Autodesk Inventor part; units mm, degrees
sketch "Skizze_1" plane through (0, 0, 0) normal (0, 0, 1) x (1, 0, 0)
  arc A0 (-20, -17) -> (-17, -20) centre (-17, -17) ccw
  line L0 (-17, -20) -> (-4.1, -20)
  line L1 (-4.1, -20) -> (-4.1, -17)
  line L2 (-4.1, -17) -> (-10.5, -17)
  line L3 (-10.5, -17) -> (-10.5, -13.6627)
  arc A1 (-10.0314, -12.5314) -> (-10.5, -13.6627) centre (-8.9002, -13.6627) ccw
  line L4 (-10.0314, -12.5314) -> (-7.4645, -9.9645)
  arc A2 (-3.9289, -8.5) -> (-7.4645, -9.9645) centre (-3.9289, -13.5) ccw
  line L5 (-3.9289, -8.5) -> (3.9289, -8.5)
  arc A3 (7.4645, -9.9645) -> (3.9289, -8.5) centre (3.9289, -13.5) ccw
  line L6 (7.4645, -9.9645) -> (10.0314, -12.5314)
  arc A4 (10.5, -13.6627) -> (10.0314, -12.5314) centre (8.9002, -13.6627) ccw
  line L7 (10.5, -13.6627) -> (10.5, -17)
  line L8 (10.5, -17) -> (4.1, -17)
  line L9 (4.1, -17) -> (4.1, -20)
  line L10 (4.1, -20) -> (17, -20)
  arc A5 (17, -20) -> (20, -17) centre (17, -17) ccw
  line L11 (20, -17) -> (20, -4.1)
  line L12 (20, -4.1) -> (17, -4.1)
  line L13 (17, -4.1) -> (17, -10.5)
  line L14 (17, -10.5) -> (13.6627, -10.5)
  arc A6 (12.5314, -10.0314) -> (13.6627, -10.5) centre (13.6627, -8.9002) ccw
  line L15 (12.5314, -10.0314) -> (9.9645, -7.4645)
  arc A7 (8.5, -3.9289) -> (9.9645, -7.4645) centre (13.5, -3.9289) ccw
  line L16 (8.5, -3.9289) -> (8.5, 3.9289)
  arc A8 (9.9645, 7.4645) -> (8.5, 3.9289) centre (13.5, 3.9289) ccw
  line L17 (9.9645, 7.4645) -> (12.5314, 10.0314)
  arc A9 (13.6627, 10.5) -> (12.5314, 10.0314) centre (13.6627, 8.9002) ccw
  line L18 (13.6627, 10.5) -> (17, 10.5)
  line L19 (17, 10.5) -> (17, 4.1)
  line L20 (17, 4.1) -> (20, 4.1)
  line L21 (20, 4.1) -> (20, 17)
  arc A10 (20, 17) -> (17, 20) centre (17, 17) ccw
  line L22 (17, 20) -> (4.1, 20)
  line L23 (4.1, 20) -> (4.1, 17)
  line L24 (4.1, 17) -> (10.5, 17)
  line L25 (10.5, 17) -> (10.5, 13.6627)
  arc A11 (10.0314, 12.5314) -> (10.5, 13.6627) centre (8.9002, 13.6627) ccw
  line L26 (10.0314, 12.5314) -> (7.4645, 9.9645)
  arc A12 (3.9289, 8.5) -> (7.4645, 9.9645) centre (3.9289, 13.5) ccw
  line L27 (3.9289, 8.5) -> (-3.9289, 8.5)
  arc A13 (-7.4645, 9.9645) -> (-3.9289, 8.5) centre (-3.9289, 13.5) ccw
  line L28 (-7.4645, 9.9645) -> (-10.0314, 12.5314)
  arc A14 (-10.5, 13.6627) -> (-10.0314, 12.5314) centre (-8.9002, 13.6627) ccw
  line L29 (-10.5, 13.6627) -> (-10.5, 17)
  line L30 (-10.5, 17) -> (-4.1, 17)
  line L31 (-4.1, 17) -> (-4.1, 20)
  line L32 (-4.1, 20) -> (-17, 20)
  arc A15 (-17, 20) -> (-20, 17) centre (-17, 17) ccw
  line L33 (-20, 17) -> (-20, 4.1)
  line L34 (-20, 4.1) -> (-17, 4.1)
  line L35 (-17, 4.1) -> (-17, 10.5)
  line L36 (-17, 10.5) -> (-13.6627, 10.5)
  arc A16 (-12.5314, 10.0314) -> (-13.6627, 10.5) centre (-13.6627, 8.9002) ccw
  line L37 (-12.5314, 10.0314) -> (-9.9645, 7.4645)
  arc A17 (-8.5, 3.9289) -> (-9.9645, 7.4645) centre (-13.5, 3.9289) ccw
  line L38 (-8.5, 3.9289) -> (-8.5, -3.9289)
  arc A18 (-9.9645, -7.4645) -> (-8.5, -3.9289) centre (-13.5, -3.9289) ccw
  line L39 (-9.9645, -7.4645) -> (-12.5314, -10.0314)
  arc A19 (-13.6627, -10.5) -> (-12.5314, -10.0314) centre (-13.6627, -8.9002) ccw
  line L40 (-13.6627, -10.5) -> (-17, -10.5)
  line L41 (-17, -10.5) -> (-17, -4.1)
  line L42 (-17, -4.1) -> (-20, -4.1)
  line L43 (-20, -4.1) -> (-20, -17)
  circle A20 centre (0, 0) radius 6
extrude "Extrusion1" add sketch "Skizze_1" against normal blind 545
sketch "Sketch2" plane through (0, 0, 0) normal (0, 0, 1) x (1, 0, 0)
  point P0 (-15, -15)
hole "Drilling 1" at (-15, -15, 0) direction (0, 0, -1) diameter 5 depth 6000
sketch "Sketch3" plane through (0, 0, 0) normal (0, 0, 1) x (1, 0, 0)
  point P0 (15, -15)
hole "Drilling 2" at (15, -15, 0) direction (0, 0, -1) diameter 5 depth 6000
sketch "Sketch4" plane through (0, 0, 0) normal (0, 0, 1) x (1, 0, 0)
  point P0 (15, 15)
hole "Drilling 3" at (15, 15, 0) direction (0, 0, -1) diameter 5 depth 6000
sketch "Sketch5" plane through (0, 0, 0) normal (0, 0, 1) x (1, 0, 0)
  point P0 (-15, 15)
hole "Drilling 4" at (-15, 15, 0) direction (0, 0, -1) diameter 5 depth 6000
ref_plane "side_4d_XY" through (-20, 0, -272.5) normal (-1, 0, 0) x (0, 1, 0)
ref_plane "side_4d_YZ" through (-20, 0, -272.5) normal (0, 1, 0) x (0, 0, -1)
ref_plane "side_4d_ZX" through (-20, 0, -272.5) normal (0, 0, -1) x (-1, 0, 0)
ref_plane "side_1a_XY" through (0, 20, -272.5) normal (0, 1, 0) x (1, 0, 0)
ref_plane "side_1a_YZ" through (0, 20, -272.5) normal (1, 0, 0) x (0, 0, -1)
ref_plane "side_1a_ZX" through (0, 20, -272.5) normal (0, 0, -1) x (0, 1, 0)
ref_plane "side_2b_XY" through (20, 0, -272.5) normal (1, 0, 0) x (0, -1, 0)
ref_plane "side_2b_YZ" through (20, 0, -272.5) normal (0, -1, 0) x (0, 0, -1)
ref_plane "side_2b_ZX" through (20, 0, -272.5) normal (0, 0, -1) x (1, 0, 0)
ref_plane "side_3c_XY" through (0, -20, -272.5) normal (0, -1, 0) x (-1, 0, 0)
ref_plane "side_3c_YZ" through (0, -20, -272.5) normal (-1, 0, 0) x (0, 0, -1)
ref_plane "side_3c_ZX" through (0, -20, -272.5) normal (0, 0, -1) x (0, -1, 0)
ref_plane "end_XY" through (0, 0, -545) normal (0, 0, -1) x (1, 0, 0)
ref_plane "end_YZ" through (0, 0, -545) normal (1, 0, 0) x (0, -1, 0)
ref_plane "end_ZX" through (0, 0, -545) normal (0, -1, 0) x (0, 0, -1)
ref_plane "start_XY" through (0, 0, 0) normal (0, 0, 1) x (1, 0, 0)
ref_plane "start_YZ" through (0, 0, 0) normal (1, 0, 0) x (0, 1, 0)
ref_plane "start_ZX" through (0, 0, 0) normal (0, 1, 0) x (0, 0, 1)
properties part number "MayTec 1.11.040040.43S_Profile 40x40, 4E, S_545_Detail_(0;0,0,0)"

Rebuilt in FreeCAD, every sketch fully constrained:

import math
import FreeCAD as App
import Part
import Sketcher

V = App.Vector
Q = App.Units.Quantity

doc = App.newDocument("Part")
body = doc.addObject("PartDesign::Body", "Body")

# Sketch on XY plane
sketch1 = body.newObject("Sketcher::SketchObject", "Sketch")
sketch1.AttachmentSupport = (doc.getObject("XY_Plane"), [""])
sketch1.MapMode = "FlatFace"
sketch1.addGeometry([
    Part.LineSegment(V(-20, -4.1, 0), V(-20, -17, 0)),  # 0
    Part.ArcOfCircle(Part.Circle(V(-17, -17, 0), V(0, 0, 1), 3), math.radians(180), math.radians(270)),  # 1
    Part.LineSegment(V(-17, -20, 0), V(-4.1, -20, 0)),  # 2
    Part.LineSegment(V(-4.1, -20, 0), V(-4.1, -17, 0)),  # 3
    Part.LineSegment(V(-4.1, -17, 0), V(-10.5, -17, 0)),  # 4
    Part.LineSegment(V(-10.5, -17, 0), V(-10.5, -13.7, 0)),  # 5
    Part.ArcOfCircle(Part.Circle(V(-8.9, -13.7, 0), V(0, 0, 1), 1.6), math.radians(135), math.radians(180)),  # 6
    Part.LineSegment(V(-10, -12.5, 0), V(-7.5, -10, 0)),  # 7
    Part.ArcOfCircle(Part.Circle(V(-3.9, -13.5, 0), V(0, 0, 1), 5), math.radians(90), math.radians(135)),  # 8
    Part.LineSegment(V(-3.9, -8.5, 0), V(3.9, -8.5, 0)),  # 9
    Part.ArcOfCircle(Part.Circle(V(3.9, -13.5, 0), V(0, 0, 1), 5), math.radians(45), math.radians(90)),  # 10
    Part.LineSegment(V(7.5, -10, 0), V(10, -12.5, 0)),  # 11
    Part.ArcOfCircle(Part.Circle(V(8.9, -13.7, 0), V(0, 0, 1), 1.6), math.radians(0), math.radians(45)),  # 12
    Part.LineSegment(V(10.5, -13.7, 0), V(10.5, -17, 0)),  # 13
    Part.LineSegment(V(10.5, -17, 0), V(4.1, -17, 0)),  # 14
    Part.LineSegment(V(4.1, -17, 0), V(4.1, -20, 0)),  # 15
    Part.LineSegment(V(4.1, -20, 0), V(17, -20, 0)),  # 16
    Part.ArcOfCircle(Part.Circle(V(17, -17, 0), V(0, 0, 1), 3), math.radians(-90), math.radians(0)),  # 17
    Part.LineSegment(V(20, -17, 0), V(20, -4.1, 0)),  # 18
    Part.LineSegment(V(20, -4.1, 0), V(17, -4.1, 0)),  # 19
    Part.LineSegment(V(17, -4.1, 0), V(17, -10.5, 0)),  # 20
    Part.LineSegment(V(17, -10.5, 0), V(13.7, -10.5, 0)),  # 21
    Part.ArcOfCircle(Part.Circle(V(13.7, -8.9, 0), V(0, 0, 1), 1.6), math.radians(-135), math.radians(-90)),  # 22
    Part.LineSegment(V(12.5, -10, 0), V(10, -7.5, 0)),  # 23
    Part.ArcOfCircle(Part.Circle(V(13.5, -3.9, 0), V(0, 0, 1), 5), math.radians(180), math.radians(225)),  # 24
    Part.LineSegment(V(8.5, -3.9, 0), V(8.5, 3.9, 0)),  # 25
    Part.ArcOfCircle(Part.Circle(V(13.5, 3.9, 0), V(0, 0, 1), 5), math.radians(135), math.radians(180)),  # 26
    Part.LineSegment(V(10, 7.5, 0), V(12.5, 10, 0)),  # 27
    Part.ArcOfCircle(Part.Circle(V(13.7, 8.9, 0), V(0, 0, 1), 1.6), math.radians(90), math.radians(135)),  # 28
    Part.LineSegment(V(13.7, 10.5, 0), V(17, 10.5, 0)),  # 29
    Part.LineSegment(V(17, 10.5, 0), V(17, 4.1, 0)),  # 30
    Part.LineSegment(V(17, 4.1, 0), V(20, 4.1, 0)),  # 31
    Part.LineSegment(V(20, 4.1, 0), V(20, 17, 0)),  # 32
    Part.ArcOfCircle(Part.Circle(V(17, 17, 0), V(0, 0, 1), 3), math.radians(0), math.radians(90)),  # 33
    Part.LineSegment(V(17, 20, 0), V(4.1, 20, 0)),  # 34
    Part.LineSegment(V(4.1, 20, 0), V(4.1, 17, 0)),  # 35
    Part.LineSegment(V(4.1, 17, 0), V(10.5, 17, 0)),  # 36
    Part.LineSegment(V(10.5, 17, 0), V(10.5, 13.7, 0)),  # 37
    Part.ArcOfCircle(Part.Circle(V(8.9, 13.7, 0), V(0, 0, 1), 1.6), math.radians(-45), math.radians(0)),  # 38
    Part.LineSegment(V(10, 12.5, 0), V(7.5, 10, 0)),  # 39
    Part.ArcOfCircle(Part.Circle(V(3.9, 13.5, 0), V(0, 0, 1), 5), math.radians(-90), math.radians(-45)),  # 40
    Part.LineSegment(V(3.9, 8.5, 0), V(-3.9, 8.5, 0)),  # 41
    Part.ArcOfCircle(Part.Circle(V(-3.9, 13.5, 0), V(0, 0, 1), 5), math.radians(-135), math.radians(-90)),  # 42
    Part.LineSegment(V(-7.5, 10, 0), V(-10, 12.5, 0)),  # 43
    Part.ArcOfCircle(Part.Circle(V(-8.9, 13.7, 0), V(0, 0, 1), 1.6), math.radians(180), math.radians(225)),  # 44
    Part.LineSegment(V(-10.5, 13.7, 0), V(-10.5, 17, 0)),  # 45
    Part.LineSegment(V(-10.5, 17, 0), V(-4.1, 17, 0)),  # 46
    Part.LineSegment(V(-4.1, 17, 0), V(-4.1, 20, 0)),  # 47
    Part.LineSegment(V(-4.1, 20, 0), V(-17, 20, 0)),  # 48
    Part.ArcOfCircle(Part.Circle(V(-17, 17, 0), V(0, 0, 1), 3), math.radians(90), math.radians(180)),  # 49
    Part.LineSegment(V(-20, 17, 0), V(-20, 4.1, 0)),  # 50
    Part.LineSegment(V(-20, 4.1, 0), V(-17, 4.1, 0)),  # 51
    Part.LineSegment(V(-17, 4.1, 0), V(-17, 10.5, 0)),  # 52
    Part.LineSegment(V(-17, 10.5, 0), V(-13.7, 10.5, 0)),  # 53
    Part.ArcOfCircle(Part.Circle(V(-13.7, 8.9, 0), V(0, 0, 1), 1.6), math.radians(45), math.radians(90)),  # 54
    Part.LineSegment(V(-12.5, 10, 0), V(-10, 7.5, 0)),  # 55
    Part.ArcOfCircle(Part.Circle(V(-13.5, 3.9, 0), V(0, 0, 1), 5), math.radians(0), math.radians(45)),  # 56
    Part.LineSegment(V(-8.5, 3.9, 0), V(-8.5, -3.9, 0)),  # 57
    Part.ArcOfCircle(Part.Circle(V(-13.5, -3.9, 0), V(0, 0, 1), 5), math.radians(-45), math.radians(0)),  # 58
    Part.LineSegment(V(-10, -7.5, 0), V(-12.5, -10, 0)),  # 59
    Part.ArcOfCircle(Part.Circle(V(-13.7, -8.9, 0), V(0, 0, 1), 1.6), math.radians(-90), math.radians(-45)),  # 60
    Part.LineSegment(V(-13.7, -10.5, 0), V(-17, -10.5, 0)),  # 61
    Part.LineSegment(V(-17, -10.5, 0), V(-17, -4.1, 0)),  # 62
    Part.LineSegment(V(-17, -4.1, 0), V(-20, -4.1, 0)),  # 63
    Part.Circle(V(0, 0, 0), V(0, 0, 1), 6),  # 64
], False)
sketch1.addConstraint([
    Sketcher.Constraint("Tangent", 0, 2, 1, 1),
    Sketcher.Constraint("Tangent", 1, 2, 2, 1),
    Sketcher.Constraint("Coincident", 2, 2, 3, 1),
    Sketcher.Constraint("Coincident", 3, 2, 4, 1),
    Sketcher.Constraint("Coincident", 4, 2, 5, 1),
    Sketcher.Constraint("Tangent", 5, 2, 6, 2),
    Sketcher.Constraint("Tangent", 6, 1, 7, 1),
    Sketcher.Constraint("Tangent", 7, 2, 8, 2),
    Sketcher.Constraint("Tangent", 8, 1, 9, 1),
    Sketcher.Constraint("Tangent", 9, 2, 10, 2),
    Sketcher.Constraint("Tangent", 10, 1, 11, 1),
    Sketcher.Constraint("Tangent", 11, 2, 12, 2),
    Sketcher.Constraint("Tangent", 12, 1, 13, 1),
    Sketcher.Constraint("Coincident", 13, 2, 14, 1),
    Sketcher.Constraint("Coincident", 14, 2, 15, 1),
    Sketcher.Constraint("Coincident", 15, 2, 16, 1),
    Sketcher.Constraint("Tangent", 16, 2, 17, 1),
    Sketcher.Constraint("Tangent", 17, 2, 18, 1),
    Sketcher.Constraint("Coincident", 18, 2, 19, 1),
    Sketcher.Constraint("Coincident", 19, 2, 20, 1),
    Sketcher.Constraint("Coincident", 20, 2, 21, 1),
    Sketcher.Constraint("Tangent", 21, 2, 22, 2),
    Sketcher.Constraint("Tangent", 22, 1, 23, 1),
    Sketcher.Constraint("Tangent", 23, 2, 24, 2),
    Sketcher.Constraint("Tangent", 24, 1, 25, 1),
    Sketcher.Constraint("Tangent", 25, 2, 26, 2),
    Sketcher.Constraint("Tangent", 26, 1, 27, 1),
    Sketcher.Constraint("Tangent", 27, 2, 28, 2),
    Sketcher.Constraint("Tangent", 28, 1, 29, 1),
    Sketcher.Constraint("Coincident", 29, 2, 30, 1),
    Sketcher.Constraint("Coincident", 30, 2, 31, 1),
    Sketcher.Constraint("Coincident", 31, 2, 32, 1),
    Sketcher.Constraint("Tangent", 32, 2, 33, 1),
    Sketcher.Constraint("Tangent", 33, 2, 34, 1),
    Sketcher.Constraint("Coincident", 34, 2, 35, 1),
    Sketcher.Constraint("Coincident", 35, 2, 36, 1),
    Sketcher.Constraint("Coincident", 36, 2, 37, 1),
    Sketcher.Constraint("Tangent", 37, 2, 38, 2),
    Sketcher.Constraint("Tangent", 38, 1, 39, 1),
    Sketcher.Constraint("Tangent", 39, 2, 40, 2),
    Sketcher.Constraint("Tangent", 40, 1, 41, 1),
    Sketcher.Constraint("Tangent", 41, 2, 42, 2),
    Sketcher.Constraint("Tangent", 42, 1, 43, 1),
    Sketcher.Constraint("Tangent", 43, 2, 44, 2),
    Sketcher.Constraint("Tangent", 44, 1, 45, 1),
    Sketcher.Constraint("Coincident", 45, 2, 46, 1),
    Sketcher.Constraint("Coincident", 46, 2, 47, 1),
    Sketcher.Constraint("Coincident", 47, 2, 48, 1),
    Sketcher.Constraint("Tangent", 48, 2, 49, 1),
    Sketcher.Constraint("Tangent", 49, 2, 50, 1),
    Sketcher.Constraint("Coincident", 50, 2, 51, 1),
    Sketcher.Constraint("Coincident", 51, 2, 52, 1),
    Sketcher.Constraint("Coincident", 52, 2, 53, 1),
    Sketcher.Constraint("Tangent", 53, 2, 54, 2),
    Sketcher.Constraint("Tangent", 54, 1, 55, 1),
    Sketcher.Constraint("Tangent", 55, 2, 56, 2),
    Sketcher.Constraint("Tangent", 56, 1, 57, 1),
    Sketcher.Constraint("Tangent", 57, 2, 58, 2),
    Sketcher.Constraint("Tangent", 58, 1, 59, 1),
    Sketcher.Constraint("Tangent", 59, 2, 60, 2),
    Sketcher.Constraint("Tangent", 60, 1, 61, 1),
    Sketcher.Constraint("Coincident", 61, 2, 62, 1),
    Sketcher.Constraint("Coincident", 62, 2, 63, 1),
    Sketcher.Constraint("Coincident", 63, 2, 0, 1),
    Sketcher.Constraint("Vertical", 0),
    Sketcher.Constraint("Horizontal", 2),
    Sketcher.Constraint("Vertical", 3),
    Sketcher.Constraint("Horizontal", 4),
    Sketcher.Constraint("Vertical", 5),
    Sketcher.Constraint("Horizontal", 9),
    Sketcher.Constraint("Vertical", 13),
    Sketcher.Constraint("Horizontal", 14),
    Sketcher.Constraint("Vertical", 15),
    Sketcher.Constraint("Horizontal", 16),
    Sketcher.Constraint("Vertical", 18),
    Sketcher.Constraint("Horizontal", 19),
    Sketcher.Constraint("Vertical", 20),
    Sketcher.Constraint("Horizontal", 21),
    Sketcher.Constraint("Vertical", 25),
    Sketcher.Constraint("Horizontal", 29),
    Sketcher.Constraint("Vertical", 30),
    Sketcher.Constraint("Horizontal", 31),
    Sketcher.Constraint("Vertical", 32),
    Sketcher.Constraint("Horizontal", 34),
    Sketcher.Constraint("Vertical", 35),
    Sketcher.Constraint("Horizontal", 36),
    Sketcher.Constraint("Vertical", 37),
    Sketcher.Constraint("Horizontal", 41),
    Sketcher.Constraint("Vertical", 45),
    Sketcher.Constraint("Horizontal", 46),
    Sketcher.Constraint("Vertical", 47),
    Sketcher.Constraint("Horizontal", 48),
    Sketcher.Constraint("Vertical", 50),
    Sketcher.Constraint("Horizontal", 51),
    Sketcher.Constraint("Vertical", 52),
    Sketcher.Constraint("Horizontal", 53),
    Sketcher.Constraint("Vertical", 57),
    Sketcher.Constraint("Horizontal", 61),
    Sketcher.Constraint("Vertical", 62),
    Sketcher.Constraint("Horizontal", 63),
    Sketcher.Constraint("Coincident", 64, 3, -1, 1),
    Sketcher.Constraint("Equal", 8, 10),
    Sketcher.Constraint("Equal", 6, 12),
    Sketcher.Constraint("Equal", 1, 17),
    Sketcher.Constraint("Equal", 12, 22),
    Sketcher.Constraint("Equal", 10, 24),
    Sketcher.Constraint("Equal", 24, 26),
    Sketcher.Constraint("Equal", 22, 28),
    Sketcher.Constraint("Equal", 17, 33),
    Sketcher.Constraint("Equal", 28, 38),
    Sketcher.Constraint("Equal", 26, 40),
    Sketcher.Constraint("Equal", 40, 42),
    Sketcher.Constraint("Equal", 38, 44),
    Sketcher.Constraint("Equal", 33, 49),
    Sketcher.Constraint("Equal", 44, 54),
    Sketcher.Constraint("Equal", 42, 56),
    Sketcher.Constraint("Equal", 56, 58),
    Sketcher.Constraint("Equal", 54, 60),
    Sketcher.Constraint("Symmetric", 1, 3, 33, 3, -1, 1),
    Sketcher.Constraint("Symmetric", 6, 3, 38, 3, -1, 1),
    Sketcher.Constraint("Symmetric", 8, 3, 40, 3, -1, 1),
    Sketcher.Constraint("Symmetric", 12, 3, 44, 3, -1, 1),
    Sketcher.Constraint("Symmetric", 17, 3, 49, 3, -1, 1),
    Sketcher.Constraint("Symmetric", 22, 3, 54, 3, -1, 1),
    Sketcher.Constraint("Symmetric", 24, 3, 56, 3, -1, 1),
    Sketcher.Constraint("Symmetric", 28, 3, 60, 3, -1, 1),
    Sketcher.Constraint("Symmetric", 3, 2, 35, 2, -1, 1),
    Sketcher.Constraint("Symmetric", 14, 2, 46, 2, -1, 1),
    Sketcher.Constraint("Symmetric", 19, 2, 51, 2, -1, 1),
    Sketcher.Constraint("Symmetric", 30, 2, 62, 2, -1, 1),
    Sketcher.Constraint("Symmetric", 6, 3, 12, 3, -2),
    Sketcher.Constraint("Symmetric", 1, 3, 17, 3, -2),
    Sketcher.Constraint("Symmetric", 28, 3, 54, 3, -2),
    Sketcher.Constraint("Symmetric", 3, 2, 14, 2, -2),
    Sketcher.Constraint("Symmetric", 30, 2, 51, 2, -2),
    Sketcher.Constraint("Perpendicular", 7, 11),
    Sketcher.Constraint("Parallel", 11, 23),
    Sketcher.Constraint("Perpendicular", 23, 27),
    Sketcher.Constraint("Perpendicular", 39, 43),
    Sketcher.Constraint("Perpendicular", 55, 59),
    Sketcher.Constraint("Horizontal", 26, 3, 56, 3),
    Sketcher.Constraint("Horizontal", 0, 2, 3, 2),
    Sketcher.Constraint("Vertical", 16, 2, 19, 2),
    Sketcher.Constraint("Equal", 48, 0),
    Sketcher.Constraint("Equal", 61, 5),
    Sketcher.Constraint("Equal", 46, 20),
    Sketcher.Constraint("Equal", 41, 25),
    Sketcher.Constraint("Equal", 11, 23),
    Sketcher.Constraint("Diameter", 64, Q("12 mm")),
    Sketcher.Constraint("Radius", 1, Q("3 mm")),
    Sketcher.Constraint("Radius", 8, Q("5 mm")),
    Sketcher.Constraint("DistanceX", 2, 1, 2, 2, Q("12.9 mm")),
    Sketcher.Constraint("DistanceX", 4, 2, 4, 1, Q("6.4 mm")),
    Sketcher.Constraint("DistanceX", 1, 3, -1, 1, Q("17 mm")),
    Sketcher.Constraint("DistanceY", 8, 3, -1, 1, Q("13.5 mm")),
    Sketcher.Constraint("Radius", 6, Q("1.5998 mm")),
    Sketcher.Constraint("DistanceX", 9, 1, 9, 2, Q("7.8578 mm")),
])
pad1 = body.newObject("PartDesign::Pad", "Pad")
pad1.Profile = sketch1
pad1.Length = 545
pad1.Reversed = True

# Sketch on XY plane
sketch2 = body.newObject("Sketcher::SketchObject", "Sketch001")
sketch2.AttachmentSupport = (doc.getObject("XY_Plane"), [""])
sketch2.MapMode = "FlatFace"
sketch2.addGeometry(Part.Circle(V(-15, -15, 0), V(0, 0, 1), 2.5), False)
sketch2.addConstraint([
    Sketcher.Constraint("Diameter", 0, Q("5 mm")),
    Sketcher.Constraint("DistanceX", 0, 3, -1, 1, Q("15 mm")),
    Sketcher.Constraint("DistanceY", 0, 3, -1, 1, Q("15 mm")),
])
doc.recompute()
hole = body.newObject("PartDesign::Hole", "Hole")
hole.Profile = sketch2
hole.ThreadType = "None"
hole.Diameter = 5
hole.DepthType = "Dimension"
hole.Depth = 6000
hole.DrillPoint = "Flat"

# Sketch on XY plane
sketch3 = body.newObject("Sketcher::SketchObject", "Sketch002")
sketch3.AttachmentSupport = (doc.getObject("XY_Plane"), [""])
sketch3.MapMode = "FlatFace"
sketch3.addGeometry(Part.Circle(V(15, -15, 0), V(0, 0, 1), 2.5), False)
sketch3.addConstraint([
    Sketcher.Constraint("Diameter", 0, Q("5 mm")),
    Sketcher.Constraint("DistanceX", -1, 1, 0, 3, Q("15 mm")),
    Sketcher.Constraint("DistanceY", 0, 3, -1, 1, Q("15 mm")),
])
doc.recompute()
hole2 = body.newObject("PartDesign::Hole", "Hole001")
hole2.Profile = sketch3
hole2.ThreadType = "None"
hole2.Diameter = 5
hole2.DepthType = "Dimension"
hole2.Depth = 6000
hole2.DrillPoint = "Flat"

# Sketch on XY plane
sketch4 = body.newObject("Sketcher::SketchObject", "Sketch003")
sketch4.AttachmentSupport = (doc.getObject("XY_Plane"), [""])
sketch4.MapMode = "FlatFace"
sketch4.addGeometry(Part.Circle(V(15, 15, 0), V(0, 0, 1), 2.5), False)
sketch4.addConstraint([
    Sketcher.Constraint("Diameter", 0, Q("5 mm")),
    Sketcher.Constraint("DistanceX", -1, 1, 0, 3, Q("15 mm")),
    Sketcher.Constraint("DistanceY", -1, 1, 0, 3, Q("15 mm")),
])
doc.recompute()
hole3 = body.newObject("PartDesign::Hole", "Hole002")
hole3.Profile = sketch4
hole3.ThreadType = "None"
hole3.Diameter = 5
hole3.DepthType = "Dimension"
hole3.Depth = 6000
hole3.DrillPoint = "Flat"

# Sketch on XY plane
sketch5 = body.newObject("Sketcher::SketchObject", "Sketch004")
sketch5.AttachmentSupport = (doc.getObject("XY_Plane"), [""])
sketch5.MapMode = "FlatFace"
sketch5.addGeometry(Part.Circle(V(-15, 15, 0), V(0, 0, 1), 2.5), False)
sketch5.addConstraint([
    Sketcher.Constraint("Diameter", 0, Q("5 mm")),
    Sketcher.Constraint("DistanceX", 0, 3, -1, 1, Q("15 mm")),
    Sketcher.Constraint("DistanceY", -1, 1, 0, 3, Q("15 mm")),
])
doc.recompute()
hole4 = body.newObject("PartDesign::Hole", "Hole003")
hole4.Profile = sketch5
hole4.ThreadType = "None"
hole4.Diameter = 5
hole4.DepthType = "Dimension"
hole4.Depth = 6000
hole4.DrillPoint = "Flat"

doc.recompute()
